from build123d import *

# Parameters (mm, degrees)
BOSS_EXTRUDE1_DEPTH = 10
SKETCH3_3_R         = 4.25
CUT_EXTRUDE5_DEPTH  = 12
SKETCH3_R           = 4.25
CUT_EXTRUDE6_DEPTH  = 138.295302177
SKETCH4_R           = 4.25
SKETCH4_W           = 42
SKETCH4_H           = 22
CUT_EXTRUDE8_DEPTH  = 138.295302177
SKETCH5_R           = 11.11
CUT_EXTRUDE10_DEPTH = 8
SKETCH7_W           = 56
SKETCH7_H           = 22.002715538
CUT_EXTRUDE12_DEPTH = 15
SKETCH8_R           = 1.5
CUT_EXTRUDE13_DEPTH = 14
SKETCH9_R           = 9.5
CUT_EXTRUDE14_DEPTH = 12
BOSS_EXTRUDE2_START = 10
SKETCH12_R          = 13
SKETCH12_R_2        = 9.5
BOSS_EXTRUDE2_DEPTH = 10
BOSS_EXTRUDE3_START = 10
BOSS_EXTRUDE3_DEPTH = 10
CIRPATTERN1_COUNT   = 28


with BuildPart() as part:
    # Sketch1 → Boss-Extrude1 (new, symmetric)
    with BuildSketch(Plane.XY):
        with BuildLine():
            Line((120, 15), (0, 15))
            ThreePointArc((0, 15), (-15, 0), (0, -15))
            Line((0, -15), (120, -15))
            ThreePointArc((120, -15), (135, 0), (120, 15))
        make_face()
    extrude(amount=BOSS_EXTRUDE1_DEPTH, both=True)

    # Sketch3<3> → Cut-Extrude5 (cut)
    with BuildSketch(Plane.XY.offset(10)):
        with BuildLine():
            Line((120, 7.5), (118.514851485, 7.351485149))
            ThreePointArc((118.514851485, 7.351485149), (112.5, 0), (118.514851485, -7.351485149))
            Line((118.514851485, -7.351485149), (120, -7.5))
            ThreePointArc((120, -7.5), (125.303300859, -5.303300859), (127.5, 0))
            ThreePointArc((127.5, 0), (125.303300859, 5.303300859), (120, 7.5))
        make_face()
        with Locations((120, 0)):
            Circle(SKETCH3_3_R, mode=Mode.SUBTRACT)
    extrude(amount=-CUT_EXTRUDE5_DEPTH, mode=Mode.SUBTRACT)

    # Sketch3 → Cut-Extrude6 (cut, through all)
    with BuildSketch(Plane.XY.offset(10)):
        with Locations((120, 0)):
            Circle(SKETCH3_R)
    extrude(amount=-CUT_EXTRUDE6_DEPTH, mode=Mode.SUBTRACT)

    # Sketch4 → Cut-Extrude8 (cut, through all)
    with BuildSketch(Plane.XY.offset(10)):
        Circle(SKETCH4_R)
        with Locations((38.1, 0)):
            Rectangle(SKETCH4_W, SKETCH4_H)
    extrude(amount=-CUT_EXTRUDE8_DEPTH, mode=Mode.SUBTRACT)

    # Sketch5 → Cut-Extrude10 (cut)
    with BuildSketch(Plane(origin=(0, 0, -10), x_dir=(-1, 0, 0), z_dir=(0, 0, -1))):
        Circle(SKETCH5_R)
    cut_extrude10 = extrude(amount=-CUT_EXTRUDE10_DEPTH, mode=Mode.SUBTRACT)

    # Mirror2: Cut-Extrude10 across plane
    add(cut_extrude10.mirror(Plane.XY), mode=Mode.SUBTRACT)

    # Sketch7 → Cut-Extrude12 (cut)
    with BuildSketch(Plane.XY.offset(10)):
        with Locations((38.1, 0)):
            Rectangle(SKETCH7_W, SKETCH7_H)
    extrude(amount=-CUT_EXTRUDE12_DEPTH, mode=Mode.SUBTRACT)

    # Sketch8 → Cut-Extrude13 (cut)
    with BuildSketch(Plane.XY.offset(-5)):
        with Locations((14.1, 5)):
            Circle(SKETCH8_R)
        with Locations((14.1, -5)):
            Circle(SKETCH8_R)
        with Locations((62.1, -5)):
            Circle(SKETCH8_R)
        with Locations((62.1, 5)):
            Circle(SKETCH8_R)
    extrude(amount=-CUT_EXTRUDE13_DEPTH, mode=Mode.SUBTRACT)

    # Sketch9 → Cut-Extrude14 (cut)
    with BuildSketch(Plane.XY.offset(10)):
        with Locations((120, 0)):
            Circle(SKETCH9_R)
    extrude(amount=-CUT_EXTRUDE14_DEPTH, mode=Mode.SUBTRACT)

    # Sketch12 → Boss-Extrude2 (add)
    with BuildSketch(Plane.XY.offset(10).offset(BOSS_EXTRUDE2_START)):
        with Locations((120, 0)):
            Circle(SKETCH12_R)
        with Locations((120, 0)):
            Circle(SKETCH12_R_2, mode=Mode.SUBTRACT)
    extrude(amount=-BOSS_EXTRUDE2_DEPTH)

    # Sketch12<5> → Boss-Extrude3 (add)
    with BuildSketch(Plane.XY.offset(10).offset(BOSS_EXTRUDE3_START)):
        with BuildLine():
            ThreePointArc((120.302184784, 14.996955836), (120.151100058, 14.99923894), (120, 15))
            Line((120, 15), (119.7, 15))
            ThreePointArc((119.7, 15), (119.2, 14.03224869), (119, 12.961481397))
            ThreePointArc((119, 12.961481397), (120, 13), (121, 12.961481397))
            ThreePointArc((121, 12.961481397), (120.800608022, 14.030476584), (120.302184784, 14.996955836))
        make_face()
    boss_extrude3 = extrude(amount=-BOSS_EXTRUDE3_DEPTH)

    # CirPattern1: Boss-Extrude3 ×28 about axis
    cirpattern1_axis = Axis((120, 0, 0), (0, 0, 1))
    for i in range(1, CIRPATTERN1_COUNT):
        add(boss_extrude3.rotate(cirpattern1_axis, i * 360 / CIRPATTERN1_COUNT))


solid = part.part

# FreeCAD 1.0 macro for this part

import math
import FreeCAD as App
import Part
import Sketcher
from FreeCAD import Vector
Q = App.Units.Quantity


def add_polygon(sketch, points):
    """Adds a closed chain of lines whose ends are joined by coincident constraints."""
    first, n = sketch.GeometryCount, len(points)
    for a, b in zip(points, points[1:] + points[:1]):
        sketch.addGeometry(Part.LineSegment(App.Vector(*a, 0), App.Vector(*b, 0)), False)
    for i in range(n):
        sketch.addConstraint(Sketcher.Constraint("Coincident", first + i, 2, first + (i + 1) % n, 1))

doc = App.newDocument("Part")
body = doc.addObject("PartDesign::Body", "Body")

# Sketch on XY plane
sketch1 = doc.addObject("Sketcher::SketchObject", "Sketch")
body.addObject(sketch1)
sketch1.AttachmentSupport = (doc.XY_Plane, [""])
sketch1.MapMode = "FlatFace"
sketch1.addGeometry(Part.LineSegment(Vector(120, 15, 0), Vector(0, 15, 0)), False)
sketch1.addGeometry(Part.ArcOfCircle(Part.Circle(Vector(0, 0, 0), Vector(0, 0, 1), 15), math.radians(90), math.radians(270)), False)
sketch1.addGeometry(Part.LineSegment(Vector(0, -15, 0), Vector(120, -15, 0)), False)
sketch1.addGeometry(Part.ArcOfCircle(Part.Circle(Vector(120, 0, 0), Vector(0, 0, 1), 15), math.radians(-90), math.radians(90)), False)
sketch1.addConstraint(Sketcher.Constraint("Tangent", 0, 2, 1, 1))
sketch1.addConstraint(Sketcher.Constraint("Tangent", 1, 2, 2, 1))
sketch1.addConstraint(Sketcher.Constraint("Tangent", 2, 2, 3, 1))
sketch1.addConstraint(Sketcher.Constraint("Tangent", 3, 2, 0, 1))
sketch1.addConstraint(Sketcher.Constraint("Horizontal", 0))
sketch1.addConstraint(Sketcher.Constraint("Horizontal", 2))
sketch1.addConstraint(Sketcher.Constraint("Coincident", 1, 3, -1, 1))
sketch1.addConstraint(Sketcher.Constraint("Radius", 1, Q("15 mm")))
sketch1.addConstraint(Sketcher.Constraint("DistanceX", 0, 2, 0, 1, Q("120 mm")))
pad1 = doc.addObject("PartDesign::Pad", "Pad")
body.addObject(pad1)
pad1.Profile = sketch1
pad1.Length = 20
pad1.Midplane = True

# Sketch on XY plane
sketch2 = doc.addObject("Sketcher::SketchObject", "Sketch001")
body.addObject(sketch2)
sketch2.AttachmentSupport = (doc.XY_Plane, [""])
sketch2.MapMode = "FlatFace"
sketch2.AttachmentOffset = App.Placement(Vector(0, 0, 10), App.Rotation())
sketch2.addGeometry(Part.LineSegment(Vector(120, 7.5, 0), Vector(118.5, 7.4, 0)), False)
sketch2.addGeometry(Part.ArcOfCircle(Part.Circle(Vector(120, 0, 0), Vector(0, 0, 1), 7.5), math.radians(101), math.radians(259)), False)
sketch2.addGeometry(Part.LineSegment(Vector(118.5, -7.4, 0), Vector(120, -7.5, 0)), False)
sketch2.addGeometry(Part.ArcOfCircle(Part.Circle(Vector(120, 0, 0), Vector(0, 0, 1), 7.5), math.radians(-90), math.radians(0)), False)
sketch2.addGeometry(Part.ArcOfCircle(Part.Circle(Vector(120, 0, 0), Vector(0, 0, 1), 7.5), math.radians(0), math.radians(90)), False)
sketch2.addGeometry(Part.Circle(Vector(120, 0, 0), Vector(0, 0, 1), 4.2), False)
sketch2.addConstraint(Sketcher.Constraint("Coincident", 0, 2, 1, 1))
sketch2.addConstraint(Sketcher.Constraint("Coincident", 1, 2, 2, 1))
sketch2.addConstraint(Sketcher.Constraint("Coincident", 2, 2, 3, 1))
sketch2.addConstraint(Sketcher.Constraint("Tangent", 3, 2, 4, 1))
sketch2.addConstraint(Sketcher.Constraint("Coincident", 4, 2, 0, 1))
sketch2.addConstraint(Sketcher.Constraint("Coincident", 3, 3, 1, 3))
sketch2.addConstraint(Sketcher.Constraint("Coincident", 5, 3, 1, 3))
sketch2.addConstraint(Sketcher.Constraint("Equal", 1, 3))
sketch2.addConstraint(Sketcher.Constraint("Equal", 3, 4))
sketch2.addConstraint(Sketcher.Constraint("Symmetric", 0, 2, 1, 2, -1))
sketch2.addConstraint(Sketcher.Constraint("PointOnObject", 3, 2, -1))
sketch2.addConstraint(Sketcher.Constraint("Vertical", 5, 3, 2, 2))
sketch2.addConstraint(Sketcher.Constraint("Vertical", 2, 2, 4, 2))
sketch2.addConstraint(Sketcher.Constraint("Diameter", 5, Q("8.5 mm")))
sketch2.addConstraint(Sketcher.Constraint("Radius", 1, Q("7.5 mm")))
sketch2.addConstraint(Sketcher.Constraint("DistanceX", -1, 1, 1, 3, Q("120 mm")))
sketch2.addConstraint(Sketcher.Constraint("DistanceX", -1, 1, 0, 2, Q("118.514851 mm")))
pocket1 = doc.addObject("PartDesign::Pocket", "Pocket")
body.addObject(pocket1)
pocket1.Profile = sketch2
pocket1.Length = 12

# Sketch on XY plane
sketch3 = doc.addObject("Sketcher::SketchObject", "Sketch002")
body.addObject(sketch3)
sketch3.AttachmentSupport = (doc.XY_Plane, [""])
sketch3.MapMode = "FlatFace"
sketch3.AttachmentOffset = App.Placement(Vector(0, 0, 10), App.Rotation())
sketch3.addGeometry(Part.Circle(Vector(120, 0, 0), Vector(0, 0, 1), 4.2), False)
sketch3.addConstraint(Sketcher.Constraint("PointOnObject", 0, 3, -1))
sketch3.addConstraint(Sketcher.Constraint("Diameter", 0, Q("8.5 mm")))
sketch3.addConstraint(Sketcher.Constraint("DistanceX", -1, 1, 0, 3, Q("120 mm")))
pocket2 = doc.addObject("PartDesign::Pocket", "Pocket001")
body.addObject(pocket2)
pocket2.Profile = sketch3
pocket2.Type = "ThroughAll"

# Sketch on XY plane
sketch4 = doc.addObject("Sketcher::SketchObject", "Sketch003")
body.addObject(sketch4)
sketch4.AttachmentSupport = (doc.XY_Plane, [""])
sketch4.MapMode = "FlatFace"
sketch4.AttachmentOffset = App.Placement(Vector(0, 0, 10), App.Rotation())
sketch4.addGeometry(Part.Circle(Vector(0, 0, 0), Vector(0, 0, 1), 4.2), False)  # 0
add_polygon(sketch4, [(17.1, 11), (17.1, -11), (59.1, -11), (59.1, 11)])  # lines 1-4
sketch4.addConstraint(Sketcher.Constraint("Vertical", 1))
sketch4.addConstraint(Sketcher.Constraint("Horizontal", 2))
sketch4.addConstraint(Sketcher.Constraint("Vertical", 3))
sketch4.addConstraint(Sketcher.Constraint("Horizontal", 4))
sketch4.addConstraint(Sketcher.Constraint("Coincident", 0, 3, -1, 1))
sketch4.addConstraint(Sketcher.Constraint("Diameter", 0, Q("8.5 mm")))
sketch4.addConstraint(Sketcher.Constraint("DistanceX", 2, 1, 2, 2, Q("42 mm")))
sketch4.addConstraint(Sketcher.Constraint("DistanceY", 1, 2, 1, 1, Q("22 mm")))
sketch4.addConstraint(Sketcher.Constraint("DistanceY", 1, 2, -1, 1, Q("11 mm")))
sketch4.addConstraint(Sketcher.Constraint("DistanceX", -1, 1, 1, 2, Q("17.1 mm")))
pocket3 = doc.addObject("PartDesign::Pocket", "Pocket002")
body.addObject(pocket3)
pocket3.Profile = sketch4
pocket3.Type = "ThroughAll"

# Sketch on XY plane
sketch5 = doc.addObject("Sketcher::SketchObject", "Sketch004")
body.addObject(sketch5)
sketch5.AttachmentSupport = (doc.XY_Plane, [""])
sketch5.MapMode = "FlatFace"
sketch5.AttachmentOffset = App.Placement(Vector(0, 0, -10), App.Rotation())
sketch5.addGeometry(Part.Circle(Vector(0, 0, 0), Vector(0, 0, 1), 11), False)
sketch5.addConstraint(Sketcher.Constraint("Coincident", 0, 3, -1, 1))
sketch5.addConstraint(Sketcher.Constraint("Diameter", 0, Q("22.22 mm")))
pocket4 = doc.addObject("PartDesign::Pocket", "Pocket003")
body.addObject(pocket4)
pocket4.Profile = sketch5
pocket4.Length = 8
pocket4.Reversed = True
doc.recompute()

mirrored = doc.addObject("PartDesign::Mirrored", "Mirrored")
body.addObject(mirrored)
mirrored.Originals = [pocket4]
mirrored.MirrorPlane = (doc.XY_Plane, [""])
body.Tip = mirrored

# Sketch on XY plane
sketch6 = doc.addObject("Sketcher::SketchObject", "Sketch005")
body.addObject(sketch6)
sketch6.AttachmentSupport = (doc.XY_Plane, [""])
sketch6.MapMode = "FlatFace"
sketch6.AttachmentOffset = App.Placement(Vector(0, 0, 10), App.Rotation())
add_polygon(sketch6, [(10, 11), (10, -11), (66, -11), (66, 11)])  # lines 0-3
sketch6.addConstraint(Sketcher.Constraint("Vertical", 0))
sketch6.addConstraint(Sketcher.Constraint("Horizontal", 1))
sketch6.addConstraint(Sketcher.Constraint("Vertical", 2))
sketch6.addConstraint(Sketcher.Constraint("Horizontal", 3))
sketch6.addConstraint(Sketcher.Constraint("DistanceX", 1, 1, 1, 2, Q("56 mm")))
sketch6.addConstraint(Sketcher.Constraint("DistanceX", -1, 1, 0, 2, Q("10.1 mm")))
sketch6.addConstraint(Sketcher.Constraint("DistanceY", 0, 2, 0, 1, Q("22.002716 mm")))
sketch6.addConstraint(Sketcher.Constraint("DistanceY", 0, 2, -1, 1, Q("11.001358 mm")))
pocket5 = doc.addObject("PartDesign::Pocket", "Pocket004")
body.addObject(pocket5)
pocket5.Profile = sketch6
pocket5.Length = 15

# Sketch on XY plane
sketch7 = doc.addObject("Sketcher::SketchObject", "Sketch006")
body.addObject(sketch7)
sketch7.AttachmentSupport = (doc.XY_Plane, [""])
sketch7.MapMode = "FlatFace"
sketch7.AttachmentOffset = App.Placement(Vector(0, 0, -5), App.Rotation())
sketch7.addGeometry(Part.Circle(Vector(14.1, 5, 0), Vector(0, 0, 1), 1.5), False)
sketch7.addGeometry(Part.Circle(Vector(14.1, -5, 0), Vector(0, 0, 1), 1.5), False)
sketch7.addGeometry(Part.Circle(Vector(62.1, -5, 0), Vector(0, 0, 1), 1.5), False)
sketch7.addGeometry(Part.Circle(Vector(62.1, 5, 0), Vector(0, 0, 1), 1.5), False)
sketch7.addConstraint(Sketcher.Constraint("Equal", 0, 1))
sketch7.addConstraint(Sketcher.Constraint("Equal", 1, 2))
sketch7.addConstraint(Sketcher.Constraint("Equal", 2, 3))
sketch7.addConstraint(Sketcher.Constraint("Symmetric", 0, 3, 1, 3, -1))
sketch7.addConstraint(Sketcher.Constraint("Symmetric", 2, 3, 3, 3, -1))
sketch7.addConstraint(Sketcher.Constraint("Horizontal", 1, 3, 2, 3))
sketch7.addConstraint(Sketcher.Constraint("Diameter", 0, Q("3 mm")))
sketch7.addConstraint(Sketcher.Constraint("DistanceY", -1, 1, 0, 3, Q("5 mm")))
sketch7.addConstraint(Sketcher.Constraint("DistanceX", 1, 3, 2, 3, Q("48 mm")))
sketch7.addConstraint(Sketcher.Constraint("DistanceX", -1, 1, 0, 3, Q("14.1 mm")))
pocket6 = doc.addObject("PartDesign::Pocket", "Pocket005")
body.addObject(pocket6)
pocket6.Profile = sketch7
pocket6.Length = 14

# Sketch on XY plane
sketch8 = doc.addObject("Sketcher::SketchObject", "Sketch007")
body.addObject(sketch8)
sketch8.AttachmentSupport = (doc.XY_Plane, [""])
sketch8.MapMode = "FlatFace"
sketch8.AttachmentOffset = App.Placement(Vector(0, 0, 10), App.Rotation())
sketch8.addGeometry(Part.Circle(Vector(120, 0, 0), Vector(0, 0, 1), 10), False)
sketch8.addConstraint(Sketcher.Constraint("PointOnObject", 0, 3, -1))
sketch8.addConstraint(Sketcher.Constraint("Diameter", 0, Q("19 mm")))
sketch8.addConstraint(Sketcher.Constraint("DistanceX", -1, 1, 0, 3, Q("120 mm")))
pocket7 = doc.addObject("PartDesign::Pocket", "Pocket006")
body.addObject(pocket7)
pocket7.Profile = sketch8
pocket7.Length = 12

# Sketch on XY plane
sketch9 = doc.addObject("Sketcher::SketchObject", "Sketch008")
body.addObject(sketch9)
sketch9.AttachmentSupport = (doc.XY_Plane, [""])
sketch9.MapMode = "FlatFace"
sketch9.AttachmentOffset = App.Placement(Vector(0, 0, 20), App.Rotation())
sketch9.addGeometry(Part.Circle(Vector(120, 0, 0), Vector(0, 0, 1), 13), False)
sketch9.addGeometry(Part.Circle(Vector(120, 0, 0), Vector(0, 0, 1), 10), False)
sketch9.addConstraint(Sketcher.Constraint("Coincident", 1, 3, 0, 3))
sketch9.addConstraint(Sketcher.Constraint("PointOnObject", 0, 3, -1))
sketch9.addConstraint(Sketcher.Constraint("Diameter", 0, Q("26 mm")))
sketch9.addConstraint(Sketcher.Constraint("Diameter", 1, Q("19 mm")))
sketch9.addConstraint(Sketcher.Constraint("DistanceX", -1, 1, 0, 3, Q("120 mm")))
pad2 = doc.addObject("PartDesign::Pad", "Pad001")
body.addObject(pad2)
pad2.Profile = sketch9
pad2.Length = 10
pad2.Reversed = True

# Sketch on XY plane
sketch10 = doc.addObject("Sketcher::SketchObject", "Sketch009")
body.addObject(sketch10)
sketch10.AttachmentSupport = (doc.XY_Plane, [""])
sketch10.MapMode = "FlatFace"
sketch10.AttachmentOffset = App.Placement(Vector(0, 0, 20), App.Rotation())
sketch10.addGeometry(Part.ArcOfCircle(Part.Circle(Vector(120, 0, 0), Vector(0, 0, 1), 15), math.radians(88.85), math.radians(90)), False)
sketch10.addGeometry(Part.LineSegment(Vector(120, 15, 0), Vector(119.7, 15, 0)), False)
sketch10.addGeometry(Part.ArcOfCircle(Part.Circle(Vector(122.74, 12.82, 0), Vector(0, 0, 1), 3.74), math.radians(144), math.radians(178)), False)
sketch10.addGeometry(Part.ArcOfCircle(Part.Circle(Vector(120, 0, 0), Vector(0, 0, 1), 13), math.radians(85.59), math.radians(94.41)), False)
sketch10.addGeometry(Part.ArcOfCircle(Part.Circle(Vector(117.26, 12.82, 0), Vector(0, 0, 1), 3.74), math.radians(2), math.radians(36)), False)
sketch10.addConstraint(Sketcher.Constraint("Tangent", 0, 2, 1, 1))
sketch10.addConstraint(Sketcher.Constraint("Coincident", 1, 2, 2, 1))
sketch10.addConstraint(Sketcher.Constraint("Coincident", 2, 2, 3, 2))
sketch10.addConstraint(Sketcher.Constraint("Coincident", 3, 1, 4, 1))
sketch10.addConstraint(Sketcher.Constraint("Coincident", 4, 2, 0, 1))
sketch10.addConstraint(Sketcher.Constraint("Horizontal", 1))
sketch10.addConstraint(Sketcher.Constraint("Coincident", 3, 3, 0, 3))
sketch10.addConstraint(Sketcher.Constraint("Equal", 2, 4))
sketch10.addConstraint(Sketcher.Constraint("PointOnObject", 3, 3, -1))
sketch10.addConstraint(Sketcher.Constraint("Horizontal", 2, 3, 4, 3))
sketch10.addConstraint(Sketcher.Constraint("Horizontal", 2, 2, 3, 1))
sketch10.addConstraint(Sketcher.Constraint("Radius", 3, Q("13 mm")))
sketch10.addConstraint(Sketcher.Constraint("DistanceX", 1, 2, 1, 1, Q("0.3 mm")))
sketch10.addConstraint(Sketcher.Constraint("DistanceX", -1, 1, 0, 3, Q("120 mm")))
sketch10.addConstraint(Sketcher.Constraint("DistanceY", -1, 1, 0, 2, Q("15 mm")))
sketch10.addConstraint(Sketcher.Constraint("DistanceX", -1, 1, 2, 2, Q("119 mm")))
sketch10.addConstraint(Sketcher.Constraint("Radius", 2, Q("3.740742 mm")))
pad3 = doc.addObject("PartDesign::Pad", "Pad002")
body.addObject(pad3)
pad3.Profile = sketch10
pad3.Length = 10
pad3.Reversed = True
doc.recompute()

datumline = doc.addObject("PartDesign::Line", "DatumLine")
body.addObject(datumline)
datumline.Placement = App.Placement(Vector(120, 0, 0), App.Rotation(Vector(0, 0, 1), Vector(0, 0, 1)))
polarpattern = doc.addObject("PartDesign::PolarPattern", "PolarPattern")
body.addObject(polarpattern)
polarpattern.Originals = [pad3]
polarpattern.Axis = (datumline, [""])
polarpattern.Angle = 360
polarpattern.Occurrences = 28
body.Tip = polarpattern

doc.recompute()
